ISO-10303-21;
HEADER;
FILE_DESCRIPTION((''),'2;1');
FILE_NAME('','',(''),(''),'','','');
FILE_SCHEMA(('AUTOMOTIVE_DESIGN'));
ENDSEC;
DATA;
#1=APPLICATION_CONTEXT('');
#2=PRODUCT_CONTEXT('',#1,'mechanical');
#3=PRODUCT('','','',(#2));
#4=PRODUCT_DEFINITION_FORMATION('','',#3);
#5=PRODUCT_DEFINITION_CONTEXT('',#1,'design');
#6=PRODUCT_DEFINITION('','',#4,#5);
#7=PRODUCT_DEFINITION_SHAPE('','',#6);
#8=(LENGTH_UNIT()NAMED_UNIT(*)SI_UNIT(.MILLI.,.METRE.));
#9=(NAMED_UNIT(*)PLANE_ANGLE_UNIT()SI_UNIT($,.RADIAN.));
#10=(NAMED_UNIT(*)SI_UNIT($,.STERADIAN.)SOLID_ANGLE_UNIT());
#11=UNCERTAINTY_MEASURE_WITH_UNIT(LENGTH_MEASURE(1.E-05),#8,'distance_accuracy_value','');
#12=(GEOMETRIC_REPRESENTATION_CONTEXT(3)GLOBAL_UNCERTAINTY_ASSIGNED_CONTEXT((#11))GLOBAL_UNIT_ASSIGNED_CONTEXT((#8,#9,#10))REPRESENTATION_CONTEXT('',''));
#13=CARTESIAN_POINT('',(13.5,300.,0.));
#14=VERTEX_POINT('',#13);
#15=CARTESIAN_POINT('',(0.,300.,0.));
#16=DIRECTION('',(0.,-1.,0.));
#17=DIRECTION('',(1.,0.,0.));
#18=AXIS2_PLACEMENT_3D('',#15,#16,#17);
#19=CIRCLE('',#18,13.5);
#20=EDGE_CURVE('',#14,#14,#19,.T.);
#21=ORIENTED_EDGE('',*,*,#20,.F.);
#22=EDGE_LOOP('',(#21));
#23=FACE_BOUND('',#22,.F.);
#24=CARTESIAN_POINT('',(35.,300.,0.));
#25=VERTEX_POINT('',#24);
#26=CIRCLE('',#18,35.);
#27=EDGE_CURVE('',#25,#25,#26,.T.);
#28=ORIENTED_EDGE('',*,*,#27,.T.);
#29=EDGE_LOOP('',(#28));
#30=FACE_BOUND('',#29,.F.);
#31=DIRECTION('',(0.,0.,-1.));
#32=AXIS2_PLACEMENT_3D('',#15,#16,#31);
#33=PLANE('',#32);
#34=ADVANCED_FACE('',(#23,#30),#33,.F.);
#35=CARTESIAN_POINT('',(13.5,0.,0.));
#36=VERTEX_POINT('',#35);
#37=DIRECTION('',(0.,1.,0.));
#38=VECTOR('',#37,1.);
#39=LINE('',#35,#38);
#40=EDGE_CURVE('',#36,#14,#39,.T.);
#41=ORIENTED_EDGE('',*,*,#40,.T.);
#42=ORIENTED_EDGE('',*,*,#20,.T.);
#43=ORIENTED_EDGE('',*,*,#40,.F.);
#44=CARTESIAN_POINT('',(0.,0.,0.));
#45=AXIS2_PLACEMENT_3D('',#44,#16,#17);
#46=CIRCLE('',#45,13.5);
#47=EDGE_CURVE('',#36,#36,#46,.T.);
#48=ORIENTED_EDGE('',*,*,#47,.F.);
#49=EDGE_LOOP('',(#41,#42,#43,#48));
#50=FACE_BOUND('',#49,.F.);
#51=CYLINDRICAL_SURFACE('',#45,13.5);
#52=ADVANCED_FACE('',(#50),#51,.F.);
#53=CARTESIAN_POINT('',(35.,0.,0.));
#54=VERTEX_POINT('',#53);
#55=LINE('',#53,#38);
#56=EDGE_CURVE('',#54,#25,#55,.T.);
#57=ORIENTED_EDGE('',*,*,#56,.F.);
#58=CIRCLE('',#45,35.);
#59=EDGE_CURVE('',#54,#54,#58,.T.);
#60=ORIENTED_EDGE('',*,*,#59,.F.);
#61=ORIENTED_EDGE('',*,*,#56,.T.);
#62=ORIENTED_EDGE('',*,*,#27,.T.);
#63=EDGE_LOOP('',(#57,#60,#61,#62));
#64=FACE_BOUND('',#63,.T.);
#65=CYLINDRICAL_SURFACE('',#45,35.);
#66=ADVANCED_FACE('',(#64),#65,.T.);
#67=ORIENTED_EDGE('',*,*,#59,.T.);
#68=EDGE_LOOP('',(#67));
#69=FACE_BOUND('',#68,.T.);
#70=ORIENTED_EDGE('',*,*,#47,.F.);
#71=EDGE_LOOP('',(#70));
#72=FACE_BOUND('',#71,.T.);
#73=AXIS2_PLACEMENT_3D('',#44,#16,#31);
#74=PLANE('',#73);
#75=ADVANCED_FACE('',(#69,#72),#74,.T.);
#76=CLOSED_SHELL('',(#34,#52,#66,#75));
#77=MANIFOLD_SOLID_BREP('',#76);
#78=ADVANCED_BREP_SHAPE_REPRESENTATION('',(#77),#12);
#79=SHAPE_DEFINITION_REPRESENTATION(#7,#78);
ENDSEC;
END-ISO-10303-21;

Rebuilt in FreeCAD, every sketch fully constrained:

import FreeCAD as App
import Part
import Sketcher

V = App.Vector
Q = App.Units.Quantity

doc = App.newDocument("Part")
params = doc.addObject("Spreadsheet::Sheet", "Params")
for row, (alias, value) in enumerate([
    ("sketch1_diameter", "70 mm"),
    ("sketch1_diameter2", "27 mm"),
    ("pad1_length", "300 mm"),
], start=1):
    params.set(f"A{row}", alias)
    params.set(f"B{row}", "=" + value)
    params.setAlias(f"B{row}", alias)

body = doc.addObject("PartDesign::Body", "Body")

# Sketch on XZ plane
sketch1 = body.newObject("Sketcher::SketchObject", "Sketch")
sketch1.AttachmentSupport = (doc.getObject("XZ_Plane"), [""])
sketch1.MapMode = "FlatFace"
sketch1.addGeometry(Part.Circle(V(0, 0, 0), V(0, 0, 1), 35), False)
sketch1.addGeometry(Part.Circle(V(0, 0, 0), V(0, 0, 1), 13.5), False)
sketch1.addConstraint(Sketcher.Constraint("Coincident", 0, 3, -1, 1))
sketch1.addConstraint(Sketcher.Constraint("Coincident", 1, 3, -1, 1))
sketch1.addConstraint(Sketcher.Constraint("Diameter", 0, Q("70 mm")))
sketch1.addConstraint(Sketcher.Constraint("Diameter", 1, Q("27 mm")))
sketch1.setExpression("Constraints[2]", "Params.sketch1_diameter")
sketch1.setExpression("Constraints[3]", "Params.sketch1_diameter2")
pad1 = body.newObject("PartDesign::Pad", "Pad")
pad1.Profile = sketch1
pad1.setExpression("Length", "Params.pad1_length")
pad1.Reversed = True

doc.recompute()
